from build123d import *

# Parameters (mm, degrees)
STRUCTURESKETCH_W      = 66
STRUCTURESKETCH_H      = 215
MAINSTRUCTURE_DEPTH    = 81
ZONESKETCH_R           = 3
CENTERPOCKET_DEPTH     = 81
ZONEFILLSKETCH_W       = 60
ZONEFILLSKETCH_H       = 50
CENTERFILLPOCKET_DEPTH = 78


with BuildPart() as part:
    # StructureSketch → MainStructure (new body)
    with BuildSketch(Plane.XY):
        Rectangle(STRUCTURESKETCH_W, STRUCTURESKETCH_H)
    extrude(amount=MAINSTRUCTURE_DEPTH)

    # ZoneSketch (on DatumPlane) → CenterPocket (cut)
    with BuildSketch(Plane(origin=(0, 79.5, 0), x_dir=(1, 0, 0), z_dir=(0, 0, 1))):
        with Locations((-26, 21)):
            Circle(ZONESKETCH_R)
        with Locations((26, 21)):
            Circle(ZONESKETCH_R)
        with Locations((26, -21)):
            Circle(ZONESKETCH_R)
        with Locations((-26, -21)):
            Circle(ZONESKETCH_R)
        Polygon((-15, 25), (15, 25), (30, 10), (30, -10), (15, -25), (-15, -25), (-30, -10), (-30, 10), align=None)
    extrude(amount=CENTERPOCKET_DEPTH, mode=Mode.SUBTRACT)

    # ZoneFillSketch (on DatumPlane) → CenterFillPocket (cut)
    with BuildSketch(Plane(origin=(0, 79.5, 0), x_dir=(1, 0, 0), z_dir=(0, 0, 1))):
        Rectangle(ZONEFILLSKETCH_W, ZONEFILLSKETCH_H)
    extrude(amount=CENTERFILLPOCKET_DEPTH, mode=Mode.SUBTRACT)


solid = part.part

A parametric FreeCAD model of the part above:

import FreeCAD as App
import Part
import Sketcher
from FreeCAD import Vector


def add_polygon(sketch, points):
    """Adds a closed chain of lines whose ends are joined by coincident constraints."""
    first, n = sketch.GeometryCount, len(points)
    for a, b in zip(points, points[1:] + points[:1]):
        sketch.addGeometry(Part.LineSegment(App.Vector(*a, 0), App.Vector(*b, 0)), False)
    for i in range(n):
        sketch.addConstraint(Sketcher.Constraint("Coincident", first + i, 2, first + (i + 1) % n, 1))

doc = App.newDocument("Part")
params = doc.addObject("Spreadsheet::Sheet", "Params")
for row, (alias, value) in enumerate([
    ("sketch1_width", "66 mm"),
    ("sketch1_height", "215 mm"),
    ("pad1_length", "81 mm"),
    ("sketch2_diameter", "6 mm"),
    ("sketch2_width", "30 mm"),
    ("sketch2_height", "20 mm"),
    ("pocket1_length", "81 mm"),
    ("sketch3_width", "60 mm"),
    ("sketch3_height", "50 mm"),
    ("pocket2_length", "78 mm"),
], start=1):
    params.set(f"A{row}", alias)
    params.set(f"B{row}", "=" + value)
    params.setAlias(f"B{row}", alias)

body = doc.addObject("PartDesign::Body", "Body")

sketch1 = body.newObject("Sketcher::SketchObject", "Sketch")
sketch1.AttachmentSupport = (doc.getObject("XY_Plane"), [""])
sketch1.MapMode = "FlatFace"
add_polygon(sketch1, [(-33, 107.5), (-33, -107.5), (33, -107.5), (33, 107.5)])
sketch1.addConstraint(Sketcher.Constraint("Vertical", 0))
sketch1.addConstraint(Sketcher.Constraint("Horizontal", 1))
sketch1.addConstraint(Sketcher.Constraint("Vertical", 2))
sketch1.addConstraint(Sketcher.Constraint("Horizontal", 3))
sketch1.addConstraint(Sketcher.Constraint("Symmetric", 0, 2, 2, 2, -1, 1))
sketch1.addConstraint(Sketcher.Constraint("DistanceX", 1, 1, 1, 2, 66.0))
sketch1.addConstraint(Sketcher.Constraint("DistanceY", 0, 2, 0, 1, 215.0))
sketch1.setExpression("Constraints[9]", "Params.sketch1_width")
sketch1.setExpression("Constraints[10]", "Params.sketch1_height")
pad1 = body.newObject("PartDesign::Pad", "Pad")
pad1.Profile = sketch1
pad1.setExpression("Length", "Params.pad1_length")

sketch2 = body.newObject("Sketcher::SketchObject", "Sketch001")
sketch2.AttachmentSupport = (doc.getObject("XY_Plane"), [""])
sketch2.MapMode = "FlatFace"
sketch2.addGeometry(Part.Circle(Vector(-26, 100.5, 0), Vector(0, 0, 1), 3), False)
sketch2.addGeometry(Part.Circle(Vector(26, 100.5, 0), Vector(0, 0, 1), 3), False)
sketch2.addGeometry(Part.Circle(Vector(26, 58.5, 0), Vector(0, 0, 1), 3), False)
sketch2.addGeometry(Part.Circle(Vector(-26, 58.5, 0), Vector(0, 0, 1), 3), False)
add_polygon(sketch2, [(15, 104.5), (-15, 104.5), (-30, 89.5), (-30, 69.5), (-15, 54.5), (15, 54.5), (30, 69.5), (30, 89.5)])
sketch2.addConstraint(Sketcher.Constraint("Horizontal", 4))
sketch2.addConstraint(Sketcher.Constraint("Vertical", 6))
sketch2.addConstraint(Sketcher.Constraint("Horizontal", 8))
sketch2.addConstraint(Sketcher.Constraint("Vertical", 10))
sketch2.addConstraint(Sketcher.Constraint("Equal", 0, 1))
sketch2.addConstraint(Sketcher.Constraint("Equal", 1, 2))
sketch2.addConstraint(Sketcher.Constraint("Equal", 2, 3))
sketch2.addConstraint(Sketcher.Constraint("Symmetric", 0, 3, 1, 3, -2))
sketch2.addConstraint(Sketcher.Constraint("Symmetric", 2, 3, 3, 3, -2))
sketch2.addConstraint(Sketcher.Constraint("Symmetric", 6, 2, 9, 2, -2))
sketch2.addConstraint(Sketcher.Constraint("Perpendicular", 5, 7))
sketch2.addConstraint(Sketcher.Constraint("Perpendicular", 7, 9))
sketch2.addConstraint(Sketcher.Constraint("Perpendicular", 9, 11))
sketch2.addConstraint(Sketcher.Constraint("Horizontal", 5, 2, 10, 2))
sketch2.addConstraint(Sketcher.Constraint("Vertical", 1, 3, 2, 3))
sketch2.addConstraint(Sketcher.Constraint("Vertical", 4, 2, 7, 2))
sketch2.addConstraint(Sketcher.Constraint("Vertical", 8, 2, 11, 2))
sketch2.addConstraint(Sketcher.Constraint("Diameter", 0, 6.0))
sketch2.addConstraint(Sketcher.Constraint("DistanceX", 4, 2, 4, 1, 30.0))
sketch2.addConstraint(Sketcher.Constraint("DistanceY", 6, 2, 6, 1, 20.0))
sketch2.addConstraint(Sketcher.Constraint("DistanceX", 0, 3, -1, 1, 26.0))
sketch2.addConstraint(Sketcher.Constraint("DistanceX", 5, 2, -1, 1, 30.0))
sketch2.addConstraint(Sketcher.Constraint("DistanceY", 2, 3, 1, 3, 42.0))
sketch2.addConstraint(Sketcher.Constraint("DistanceY", 0, 3, 4, 2, 4.0))
sketch2.addConstraint(Sketcher.Constraint("DistanceY", -1, 1, 0, 3, 100.5))
sketch2.setExpression("Constraints[25]", "Params.sketch2_diameter")
sketch2.setExpression("Constraints[26]", "Params.sketch2_width")
sketch2.setExpression("Constraints[27]", "Params.sketch2_height")
pocket1 = body.newObject("PartDesign::Pocket", "Pocket")
pocket1.Profile = sketch2
pocket1.setExpression("Length", "Params.pocket1_length")
pocket1.Reversed = True

sketch3 = body.newObject("Sketcher::SketchObject", "Sketch002")
sketch3.AttachmentSupport = (doc.getObject("XY_Plane"), [""])
sketch3.MapMode = "FlatFace"
add_polygon(sketch3, [(-30, 104.5), (-30, 54.5), (30, 54.5), (30, 104.5)])
sketch3.addConstraint(Sketcher.Constraint("Vertical", 0))
sketch3.addConstraint(Sketcher.Constraint("Horizontal", 1))
sketch3.addConstraint(Sketcher.Constraint("Vertical", 2))
sketch3.addConstraint(Sketcher.Constraint("Horizontal", 3))
sketch3.addConstraint(Sketcher.Constraint("DistanceX", 1, 1, 1, 2, 60.0))
sketch3.addConstraint(Sketcher.Constraint("DistanceY", 0, 2, 0, 1, 50.0))
sketch3.addConstraint(Sketcher.Constraint("DistanceX", 0, 2, -1, 1, 30.0))
sketch3.addConstraint(Sketcher.Constraint("DistanceY", -1, 1, 0, 2, 54.5))
sketch3.setExpression("Constraints[8]", "Params.sketch3_width")
sketch3.setExpression("Constraints[9]", "Params.sketch3_height")
pocket2 = body.newObject("PartDesign::Pocket", "Pocket001")
pocket2.Profile = sketch3
pocket2.setExpression("Length", "Params.pocket2_length")
pocket2.Reversed = True

doc.recompute()
